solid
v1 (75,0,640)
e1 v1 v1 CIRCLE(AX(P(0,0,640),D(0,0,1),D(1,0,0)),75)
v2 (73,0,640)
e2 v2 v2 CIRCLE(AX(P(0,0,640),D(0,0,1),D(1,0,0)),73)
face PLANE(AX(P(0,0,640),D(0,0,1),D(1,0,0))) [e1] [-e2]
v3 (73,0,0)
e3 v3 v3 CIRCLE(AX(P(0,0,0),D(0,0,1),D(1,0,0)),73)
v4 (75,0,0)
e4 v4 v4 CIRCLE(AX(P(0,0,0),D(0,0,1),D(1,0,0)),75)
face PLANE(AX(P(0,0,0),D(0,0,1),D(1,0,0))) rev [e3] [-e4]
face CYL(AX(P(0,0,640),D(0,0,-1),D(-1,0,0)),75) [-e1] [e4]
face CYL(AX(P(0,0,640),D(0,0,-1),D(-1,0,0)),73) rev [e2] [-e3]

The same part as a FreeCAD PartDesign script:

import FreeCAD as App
import Part
import Sketcher
Q = App.Units.Quantity

doc = App.newDocument("Part")
body = doc.addObject("PartDesign::Body", "Body")

sketch1 = body.newObject("Sketcher::SketchObject", "Sketch")
sketch1.AttachmentSupport = (doc.getObject("XY_Plane"), [""])
sketch1.MapMode = "FlatFace"
sketch1.addGeometry([
    Part.Circle(App.Vector(0, 0, 0), App.Vector(0, 0, 1), 75),
    Part.Circle(App.Vector(0, 0, 0), App.Vector(0, 0, 1), 73),
], False)
sketch1.addConstraint([
    Sketcher.Constraint("Coincident", 0, 3, -1, 1),
    Sketcher.Constraint("Coincident", 1, 3, -1, 1),
    Sketcher.Constraint("Diameter", 0, Q("150 mm")),
    Sketcher.Constraint("Diameter", 1, Q("146 mm")),
])
pad1 = body.newObject("PartDesign::Pad", "Pad")
pad1.Profile = sketch1
pad1.Length = 640

doc.recompute()
